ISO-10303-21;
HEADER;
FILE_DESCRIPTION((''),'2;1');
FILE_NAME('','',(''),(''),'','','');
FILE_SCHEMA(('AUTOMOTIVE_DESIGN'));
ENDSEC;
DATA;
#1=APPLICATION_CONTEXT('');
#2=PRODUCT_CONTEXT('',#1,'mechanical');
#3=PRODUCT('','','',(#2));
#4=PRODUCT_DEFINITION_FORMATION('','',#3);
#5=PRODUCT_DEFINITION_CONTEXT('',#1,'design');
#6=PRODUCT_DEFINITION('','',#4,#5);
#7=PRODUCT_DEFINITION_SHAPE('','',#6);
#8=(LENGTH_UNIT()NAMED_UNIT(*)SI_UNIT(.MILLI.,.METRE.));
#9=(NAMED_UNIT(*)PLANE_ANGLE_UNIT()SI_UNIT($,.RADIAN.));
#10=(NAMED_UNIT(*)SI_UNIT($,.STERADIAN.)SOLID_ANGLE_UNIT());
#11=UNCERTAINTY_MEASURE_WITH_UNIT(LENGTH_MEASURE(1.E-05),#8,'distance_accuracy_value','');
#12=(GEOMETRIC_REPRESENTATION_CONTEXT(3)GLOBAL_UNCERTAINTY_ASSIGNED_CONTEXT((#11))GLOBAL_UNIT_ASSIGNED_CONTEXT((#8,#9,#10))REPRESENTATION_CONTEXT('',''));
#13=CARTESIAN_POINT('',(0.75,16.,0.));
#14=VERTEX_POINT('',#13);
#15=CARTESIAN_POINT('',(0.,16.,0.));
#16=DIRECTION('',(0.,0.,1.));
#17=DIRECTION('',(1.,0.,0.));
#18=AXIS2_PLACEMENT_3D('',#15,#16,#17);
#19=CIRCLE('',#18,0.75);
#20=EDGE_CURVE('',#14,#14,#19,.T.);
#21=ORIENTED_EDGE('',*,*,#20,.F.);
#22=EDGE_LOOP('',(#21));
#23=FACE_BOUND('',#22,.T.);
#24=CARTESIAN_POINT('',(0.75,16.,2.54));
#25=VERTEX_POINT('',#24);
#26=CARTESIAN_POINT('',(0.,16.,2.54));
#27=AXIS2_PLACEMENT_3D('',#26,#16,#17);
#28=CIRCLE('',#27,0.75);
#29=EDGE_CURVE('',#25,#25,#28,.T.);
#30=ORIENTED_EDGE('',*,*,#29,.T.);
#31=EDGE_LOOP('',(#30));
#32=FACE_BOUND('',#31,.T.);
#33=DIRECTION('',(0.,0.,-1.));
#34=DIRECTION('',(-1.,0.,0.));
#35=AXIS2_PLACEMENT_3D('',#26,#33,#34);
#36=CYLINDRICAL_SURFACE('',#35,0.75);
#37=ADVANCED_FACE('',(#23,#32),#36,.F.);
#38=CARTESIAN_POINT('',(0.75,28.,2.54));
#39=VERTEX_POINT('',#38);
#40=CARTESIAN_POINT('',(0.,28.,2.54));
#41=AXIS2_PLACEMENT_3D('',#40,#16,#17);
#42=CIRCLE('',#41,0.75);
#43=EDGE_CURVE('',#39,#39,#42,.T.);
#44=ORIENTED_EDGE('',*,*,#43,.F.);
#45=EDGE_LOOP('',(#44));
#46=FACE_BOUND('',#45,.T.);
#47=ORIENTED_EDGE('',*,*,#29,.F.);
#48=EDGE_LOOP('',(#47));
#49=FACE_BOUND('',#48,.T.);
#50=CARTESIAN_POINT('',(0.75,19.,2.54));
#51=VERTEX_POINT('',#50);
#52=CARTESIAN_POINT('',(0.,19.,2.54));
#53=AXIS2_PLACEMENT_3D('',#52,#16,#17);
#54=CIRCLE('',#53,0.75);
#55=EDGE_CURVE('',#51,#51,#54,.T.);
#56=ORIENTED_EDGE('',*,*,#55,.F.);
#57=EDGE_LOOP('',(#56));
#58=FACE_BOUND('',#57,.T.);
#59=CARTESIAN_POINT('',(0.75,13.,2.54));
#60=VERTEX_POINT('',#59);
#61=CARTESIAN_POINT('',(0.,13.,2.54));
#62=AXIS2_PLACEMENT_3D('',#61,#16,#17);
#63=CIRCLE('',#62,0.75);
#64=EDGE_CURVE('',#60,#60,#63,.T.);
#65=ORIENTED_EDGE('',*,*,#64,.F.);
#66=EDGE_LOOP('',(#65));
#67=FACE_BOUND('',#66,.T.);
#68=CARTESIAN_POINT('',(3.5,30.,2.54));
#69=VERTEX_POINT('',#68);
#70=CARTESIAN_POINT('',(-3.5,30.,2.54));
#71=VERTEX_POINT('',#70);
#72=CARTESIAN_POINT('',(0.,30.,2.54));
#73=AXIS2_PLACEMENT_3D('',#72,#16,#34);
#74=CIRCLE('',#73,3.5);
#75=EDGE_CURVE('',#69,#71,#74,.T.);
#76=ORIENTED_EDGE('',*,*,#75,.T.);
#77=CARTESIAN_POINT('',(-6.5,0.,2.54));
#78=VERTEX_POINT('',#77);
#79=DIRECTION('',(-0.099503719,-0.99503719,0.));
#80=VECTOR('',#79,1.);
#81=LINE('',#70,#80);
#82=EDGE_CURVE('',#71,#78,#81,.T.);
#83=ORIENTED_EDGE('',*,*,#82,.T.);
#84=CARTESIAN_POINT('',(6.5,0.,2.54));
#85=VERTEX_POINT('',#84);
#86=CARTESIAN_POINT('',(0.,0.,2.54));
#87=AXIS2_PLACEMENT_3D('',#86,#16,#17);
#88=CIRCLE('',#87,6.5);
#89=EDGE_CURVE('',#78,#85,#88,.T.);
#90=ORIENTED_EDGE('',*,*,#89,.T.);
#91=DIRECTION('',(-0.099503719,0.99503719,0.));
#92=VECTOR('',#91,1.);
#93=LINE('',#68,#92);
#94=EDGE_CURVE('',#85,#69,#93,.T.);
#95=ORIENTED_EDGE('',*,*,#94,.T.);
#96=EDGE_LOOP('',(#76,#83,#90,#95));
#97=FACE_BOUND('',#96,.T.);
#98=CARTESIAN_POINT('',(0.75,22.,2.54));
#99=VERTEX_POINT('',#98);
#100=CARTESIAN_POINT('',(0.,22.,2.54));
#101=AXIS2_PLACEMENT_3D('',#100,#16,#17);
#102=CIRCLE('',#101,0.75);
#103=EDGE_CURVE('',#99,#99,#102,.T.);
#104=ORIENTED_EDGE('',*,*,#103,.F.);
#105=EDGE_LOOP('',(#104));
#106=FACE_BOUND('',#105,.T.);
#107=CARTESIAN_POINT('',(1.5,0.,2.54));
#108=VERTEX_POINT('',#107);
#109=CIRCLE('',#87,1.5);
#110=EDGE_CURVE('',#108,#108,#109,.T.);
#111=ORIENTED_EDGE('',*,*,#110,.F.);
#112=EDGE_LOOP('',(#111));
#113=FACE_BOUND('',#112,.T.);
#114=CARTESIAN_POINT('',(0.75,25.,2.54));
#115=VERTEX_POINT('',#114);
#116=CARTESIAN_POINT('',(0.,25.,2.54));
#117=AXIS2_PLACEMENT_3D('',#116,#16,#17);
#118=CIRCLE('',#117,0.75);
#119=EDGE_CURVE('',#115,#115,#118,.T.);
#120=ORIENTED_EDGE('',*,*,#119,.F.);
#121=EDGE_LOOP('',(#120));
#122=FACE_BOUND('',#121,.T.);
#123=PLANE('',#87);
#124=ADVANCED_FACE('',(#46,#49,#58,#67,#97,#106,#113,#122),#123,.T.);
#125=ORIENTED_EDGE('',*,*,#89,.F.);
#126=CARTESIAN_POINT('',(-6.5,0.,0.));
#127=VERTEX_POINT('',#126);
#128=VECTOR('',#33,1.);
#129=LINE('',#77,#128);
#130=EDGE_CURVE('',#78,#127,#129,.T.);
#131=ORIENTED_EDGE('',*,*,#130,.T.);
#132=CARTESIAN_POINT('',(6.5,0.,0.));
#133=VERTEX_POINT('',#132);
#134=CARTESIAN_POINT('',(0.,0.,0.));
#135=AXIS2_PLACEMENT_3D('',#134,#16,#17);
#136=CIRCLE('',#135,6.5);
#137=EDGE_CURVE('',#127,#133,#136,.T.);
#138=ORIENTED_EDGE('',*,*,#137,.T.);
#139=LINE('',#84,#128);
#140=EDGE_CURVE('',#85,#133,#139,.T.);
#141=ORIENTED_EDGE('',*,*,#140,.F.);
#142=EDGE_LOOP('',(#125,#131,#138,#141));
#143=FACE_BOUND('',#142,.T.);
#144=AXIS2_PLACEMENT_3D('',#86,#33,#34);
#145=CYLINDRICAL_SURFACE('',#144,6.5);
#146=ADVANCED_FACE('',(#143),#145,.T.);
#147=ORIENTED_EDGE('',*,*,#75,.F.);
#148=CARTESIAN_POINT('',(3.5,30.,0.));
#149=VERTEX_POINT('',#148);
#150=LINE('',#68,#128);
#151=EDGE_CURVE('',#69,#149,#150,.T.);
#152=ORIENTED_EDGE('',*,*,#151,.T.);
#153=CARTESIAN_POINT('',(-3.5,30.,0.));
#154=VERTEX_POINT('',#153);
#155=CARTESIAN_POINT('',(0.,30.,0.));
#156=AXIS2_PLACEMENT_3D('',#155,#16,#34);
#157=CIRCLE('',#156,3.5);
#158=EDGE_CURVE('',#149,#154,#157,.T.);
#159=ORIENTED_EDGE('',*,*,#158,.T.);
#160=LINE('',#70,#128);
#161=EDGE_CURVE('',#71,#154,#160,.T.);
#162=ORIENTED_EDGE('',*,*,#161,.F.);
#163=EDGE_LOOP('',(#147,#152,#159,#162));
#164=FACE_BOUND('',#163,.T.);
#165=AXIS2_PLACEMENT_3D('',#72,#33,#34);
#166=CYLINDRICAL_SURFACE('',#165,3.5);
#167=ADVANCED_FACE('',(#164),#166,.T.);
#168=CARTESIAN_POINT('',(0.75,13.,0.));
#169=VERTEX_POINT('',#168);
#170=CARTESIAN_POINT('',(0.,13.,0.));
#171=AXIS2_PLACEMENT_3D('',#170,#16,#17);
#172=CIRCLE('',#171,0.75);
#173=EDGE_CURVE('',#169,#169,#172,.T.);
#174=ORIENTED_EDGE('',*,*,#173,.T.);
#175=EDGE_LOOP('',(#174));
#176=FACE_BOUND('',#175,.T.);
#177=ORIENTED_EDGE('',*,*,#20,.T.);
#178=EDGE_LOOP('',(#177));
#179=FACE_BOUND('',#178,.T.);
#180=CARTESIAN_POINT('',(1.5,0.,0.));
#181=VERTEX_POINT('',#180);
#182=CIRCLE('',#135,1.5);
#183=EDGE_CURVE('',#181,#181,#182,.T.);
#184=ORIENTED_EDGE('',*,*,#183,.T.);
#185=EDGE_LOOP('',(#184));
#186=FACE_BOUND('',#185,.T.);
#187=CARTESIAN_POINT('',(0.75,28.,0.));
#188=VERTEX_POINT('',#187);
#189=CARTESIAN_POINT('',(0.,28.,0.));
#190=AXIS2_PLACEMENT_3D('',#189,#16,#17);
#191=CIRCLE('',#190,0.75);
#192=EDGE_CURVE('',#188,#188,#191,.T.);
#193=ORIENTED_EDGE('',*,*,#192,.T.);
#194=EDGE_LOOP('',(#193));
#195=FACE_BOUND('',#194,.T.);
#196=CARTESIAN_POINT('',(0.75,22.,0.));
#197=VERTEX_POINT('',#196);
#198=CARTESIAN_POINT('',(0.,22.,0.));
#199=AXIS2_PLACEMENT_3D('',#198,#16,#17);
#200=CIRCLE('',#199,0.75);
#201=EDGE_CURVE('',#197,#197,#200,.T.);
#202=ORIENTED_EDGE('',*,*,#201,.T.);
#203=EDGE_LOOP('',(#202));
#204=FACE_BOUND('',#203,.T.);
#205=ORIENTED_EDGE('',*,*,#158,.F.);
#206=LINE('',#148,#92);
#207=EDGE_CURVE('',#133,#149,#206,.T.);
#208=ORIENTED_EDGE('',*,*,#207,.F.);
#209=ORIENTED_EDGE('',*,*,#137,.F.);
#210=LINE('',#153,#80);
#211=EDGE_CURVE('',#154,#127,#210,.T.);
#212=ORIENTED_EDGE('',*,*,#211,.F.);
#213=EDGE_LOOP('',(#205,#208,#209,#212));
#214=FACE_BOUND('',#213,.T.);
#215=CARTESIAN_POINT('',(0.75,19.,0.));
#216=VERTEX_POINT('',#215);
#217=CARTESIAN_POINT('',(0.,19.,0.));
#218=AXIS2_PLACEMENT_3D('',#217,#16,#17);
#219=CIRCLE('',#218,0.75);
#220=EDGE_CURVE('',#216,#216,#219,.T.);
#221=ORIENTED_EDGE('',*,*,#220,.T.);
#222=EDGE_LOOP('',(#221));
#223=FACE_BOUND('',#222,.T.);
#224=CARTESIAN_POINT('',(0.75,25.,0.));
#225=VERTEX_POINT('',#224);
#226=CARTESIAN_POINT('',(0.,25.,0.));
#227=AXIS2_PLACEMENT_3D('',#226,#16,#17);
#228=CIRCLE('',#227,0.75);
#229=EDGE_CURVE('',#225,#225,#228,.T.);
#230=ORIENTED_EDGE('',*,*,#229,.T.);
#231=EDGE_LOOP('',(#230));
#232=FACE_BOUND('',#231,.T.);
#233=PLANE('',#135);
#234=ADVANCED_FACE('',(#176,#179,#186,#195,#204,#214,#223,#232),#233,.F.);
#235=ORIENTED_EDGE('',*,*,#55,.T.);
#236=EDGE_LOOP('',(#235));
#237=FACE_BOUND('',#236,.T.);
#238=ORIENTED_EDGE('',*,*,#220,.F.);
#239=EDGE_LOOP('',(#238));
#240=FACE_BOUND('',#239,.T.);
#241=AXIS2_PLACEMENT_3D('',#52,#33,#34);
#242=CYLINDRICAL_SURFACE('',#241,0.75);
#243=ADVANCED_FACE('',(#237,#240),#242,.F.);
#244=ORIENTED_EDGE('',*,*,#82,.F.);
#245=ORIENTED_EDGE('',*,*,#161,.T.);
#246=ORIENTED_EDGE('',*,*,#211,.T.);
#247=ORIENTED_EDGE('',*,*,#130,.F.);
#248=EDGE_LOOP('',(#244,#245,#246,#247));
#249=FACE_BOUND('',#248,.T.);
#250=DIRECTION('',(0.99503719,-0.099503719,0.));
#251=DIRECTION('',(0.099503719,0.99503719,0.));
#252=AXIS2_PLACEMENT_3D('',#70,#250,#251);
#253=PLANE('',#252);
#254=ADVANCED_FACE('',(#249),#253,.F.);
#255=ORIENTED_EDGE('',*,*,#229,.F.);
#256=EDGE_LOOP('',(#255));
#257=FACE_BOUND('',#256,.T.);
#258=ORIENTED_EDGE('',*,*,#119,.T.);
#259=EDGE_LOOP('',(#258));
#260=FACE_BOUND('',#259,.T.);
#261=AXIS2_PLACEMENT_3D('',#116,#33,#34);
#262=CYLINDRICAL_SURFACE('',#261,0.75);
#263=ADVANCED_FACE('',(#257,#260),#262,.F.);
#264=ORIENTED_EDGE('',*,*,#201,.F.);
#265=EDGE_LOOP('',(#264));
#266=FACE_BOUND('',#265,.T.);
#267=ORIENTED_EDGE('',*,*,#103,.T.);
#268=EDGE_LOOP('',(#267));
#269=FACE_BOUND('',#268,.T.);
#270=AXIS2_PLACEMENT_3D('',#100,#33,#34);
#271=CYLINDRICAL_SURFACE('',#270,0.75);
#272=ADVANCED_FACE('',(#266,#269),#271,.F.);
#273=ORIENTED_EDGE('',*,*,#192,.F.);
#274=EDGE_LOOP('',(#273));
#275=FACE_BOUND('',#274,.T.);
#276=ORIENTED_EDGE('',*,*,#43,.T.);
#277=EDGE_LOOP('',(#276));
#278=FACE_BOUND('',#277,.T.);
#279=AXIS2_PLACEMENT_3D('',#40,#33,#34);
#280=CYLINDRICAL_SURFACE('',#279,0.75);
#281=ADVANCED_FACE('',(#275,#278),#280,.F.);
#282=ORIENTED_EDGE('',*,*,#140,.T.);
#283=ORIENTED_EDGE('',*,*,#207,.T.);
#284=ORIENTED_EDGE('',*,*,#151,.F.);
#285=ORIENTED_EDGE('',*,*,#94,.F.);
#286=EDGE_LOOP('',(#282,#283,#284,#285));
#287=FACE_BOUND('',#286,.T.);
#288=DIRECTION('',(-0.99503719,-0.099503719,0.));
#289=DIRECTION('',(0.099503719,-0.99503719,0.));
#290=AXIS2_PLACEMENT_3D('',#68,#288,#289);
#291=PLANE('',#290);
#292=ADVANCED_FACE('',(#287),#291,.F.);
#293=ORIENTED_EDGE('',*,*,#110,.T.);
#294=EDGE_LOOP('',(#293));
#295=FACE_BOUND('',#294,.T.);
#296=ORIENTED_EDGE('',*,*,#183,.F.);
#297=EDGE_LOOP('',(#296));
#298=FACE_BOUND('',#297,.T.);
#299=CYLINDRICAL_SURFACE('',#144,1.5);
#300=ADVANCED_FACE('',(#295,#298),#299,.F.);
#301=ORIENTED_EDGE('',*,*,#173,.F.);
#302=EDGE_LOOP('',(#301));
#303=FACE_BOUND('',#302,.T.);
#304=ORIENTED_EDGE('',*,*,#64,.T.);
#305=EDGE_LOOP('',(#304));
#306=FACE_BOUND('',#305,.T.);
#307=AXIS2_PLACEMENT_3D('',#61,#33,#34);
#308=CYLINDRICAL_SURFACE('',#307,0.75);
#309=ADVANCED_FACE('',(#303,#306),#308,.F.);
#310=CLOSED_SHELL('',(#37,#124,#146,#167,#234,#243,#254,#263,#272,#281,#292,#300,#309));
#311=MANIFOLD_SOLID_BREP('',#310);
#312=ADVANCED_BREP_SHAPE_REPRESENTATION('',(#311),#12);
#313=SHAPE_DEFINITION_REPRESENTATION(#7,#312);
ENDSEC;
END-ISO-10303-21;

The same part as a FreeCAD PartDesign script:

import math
import FreeCAD as App
import Part
import Sketcher
from FreeCAD import Vector

doc = App.newDocument("Part")
body = doc.addObject("PartDesign::Body", "Body")

# Sketch on XY plane
sketch1 = body.newObject("Sketcher::SketchObject", "Sketch")
sketch1.AttachmentSupport = (doc.getObject("XY_Plane"), [""])
sketch1.MapMode = "FlatFace"
sketch1.addGeometry([
    Part.LineSegment(Vector(-3.5, 30, 0), Vector(-6.5, 0, 0)),  # 0
    Part.ArcOfCircle(Part.Circle(Vector(0, 0, 0), Vector(0, 0, 1), 6.5), math.radians(180), math.radians(360)),  # 1
    Part.LineSegment(Vector(6.5, 0, 0), Vector(3.5, 30, 0)),  # 2
    Part.ArcOfCircle(Part.Circle(Vector(0, 30, 0), Vector(0, 0, 1), 3.5), math.radians(0), math.radians(180)),  # 3
    Part.Circle(Vector(0, 0, 0), Vector(0, 0, 1), 1.5),  # 4
    Part.Circle(Vector(0, 13, 0), Vector(0, 0, 1), 0.8),  # 5
    Part.Circle(Vector(0, 16, 0), Vector(0, 0, 1), 0.8),  # 6
    Part.Circle(Vector(0, 19, 0), Vector(0, 0, 1), 0.8),  # 7
    Part.Circle(Vector(0, 22, 0), Vector(0, 0, 1), 0.8),  # 8
    Part.Circle(Vector(0, 25, 0), Vector(0, 0, 1), 0.8),  # 9
    Part.Circle(Vector(0, 28, 0), Vector(0, 0, 1), 0.8),  # 10
], False)
sketch1.addConstraint([
    Sketcher.Constraint("Coincident", 0, 2, 1, 1),
    Sketcher.Constraint("Coincident", 1, 2, 2, 1),
    Sketcher.Constraint("Coincident", 2, 2, 3, 1),
    Sketcher.Constraint("Coincident", 3, 2, 0, 1),
    Sketcher.Constraint("Coincident", 1, 3, -1, 1),
    Sketcher.Constraint("Coincident", 4, 3, -1, 1),
    Sketcher.Constraint("Equal", 5, 6),
    Sketcher.Constraint("Equal", 6, 7),
    Sketcher.Constraint("Equal", 7, 8),
    Sketcher.Constraint("Equal", 8, 9),
    Sketcher.Constraint("Equal", 9, 10),
    Sketcher.Constraint("Symmetric", 2, 2, 3, 2, -2),
    Sketcher.Constraint("PointOnObject", 5, 3, -2),
    Sketcher.Constraint("PointOnObject", 6, 3, -2),
    Sketcher.Constraint("PointOnObject", 7, 3, -2),
    Sketcher.Constraint("PointOnObject", 8, 3, -2),
    Sketcher.Constraint("PointOnObject", 9, 3, -2),
    Sketcher.Constraint("PointOnObject", 10, 3, -2),
    Sketcher.Constraint("PointOnObject", 0, 2, -1),
    Sketcher.Constraint("PointOnObject", 1, 2, -1),
    Sketcher.Constraint("Horizontal", 3, 3, 2, 2),
    Sketcher.Constraint("Diameter", 4, 3.0),
    Sketcher.Constraint("Diameter", 5, 1.5),
    Sketcher.Constraint("Radius", 1, 6.5),
    Sketcher.Constraint("Radius", 3, 3.5),
    Sketcher.Constraint("DistanceY", -1, 1, 3, 3, 30.0),
    Sketcher.Constraint("DistanceY", -1, 1, 5, 3, 13.0),
    Sketcher.Constraint("DistanceY", -1, 1, 6, 3, 16.0),
    Sketcher.Constraint("DistanceY", -1, 1, 7, 3, 19.0),
    Sketcher.Constraint("DistanceY", -1, 1, 8, 3, 22.0),
    Sketcher.Constraint("DistanceY", -1, 1, 9, 3, 25.0),
    Sketcher.Constraint("DistanceY", -1, 1, 10, 3, 28.0),
])
pad1 = body.newObject("PartDesign::Pad", "Pad")
pad1.Profile = sketch1
pad1.Length = 2.54

doc.recompute()
